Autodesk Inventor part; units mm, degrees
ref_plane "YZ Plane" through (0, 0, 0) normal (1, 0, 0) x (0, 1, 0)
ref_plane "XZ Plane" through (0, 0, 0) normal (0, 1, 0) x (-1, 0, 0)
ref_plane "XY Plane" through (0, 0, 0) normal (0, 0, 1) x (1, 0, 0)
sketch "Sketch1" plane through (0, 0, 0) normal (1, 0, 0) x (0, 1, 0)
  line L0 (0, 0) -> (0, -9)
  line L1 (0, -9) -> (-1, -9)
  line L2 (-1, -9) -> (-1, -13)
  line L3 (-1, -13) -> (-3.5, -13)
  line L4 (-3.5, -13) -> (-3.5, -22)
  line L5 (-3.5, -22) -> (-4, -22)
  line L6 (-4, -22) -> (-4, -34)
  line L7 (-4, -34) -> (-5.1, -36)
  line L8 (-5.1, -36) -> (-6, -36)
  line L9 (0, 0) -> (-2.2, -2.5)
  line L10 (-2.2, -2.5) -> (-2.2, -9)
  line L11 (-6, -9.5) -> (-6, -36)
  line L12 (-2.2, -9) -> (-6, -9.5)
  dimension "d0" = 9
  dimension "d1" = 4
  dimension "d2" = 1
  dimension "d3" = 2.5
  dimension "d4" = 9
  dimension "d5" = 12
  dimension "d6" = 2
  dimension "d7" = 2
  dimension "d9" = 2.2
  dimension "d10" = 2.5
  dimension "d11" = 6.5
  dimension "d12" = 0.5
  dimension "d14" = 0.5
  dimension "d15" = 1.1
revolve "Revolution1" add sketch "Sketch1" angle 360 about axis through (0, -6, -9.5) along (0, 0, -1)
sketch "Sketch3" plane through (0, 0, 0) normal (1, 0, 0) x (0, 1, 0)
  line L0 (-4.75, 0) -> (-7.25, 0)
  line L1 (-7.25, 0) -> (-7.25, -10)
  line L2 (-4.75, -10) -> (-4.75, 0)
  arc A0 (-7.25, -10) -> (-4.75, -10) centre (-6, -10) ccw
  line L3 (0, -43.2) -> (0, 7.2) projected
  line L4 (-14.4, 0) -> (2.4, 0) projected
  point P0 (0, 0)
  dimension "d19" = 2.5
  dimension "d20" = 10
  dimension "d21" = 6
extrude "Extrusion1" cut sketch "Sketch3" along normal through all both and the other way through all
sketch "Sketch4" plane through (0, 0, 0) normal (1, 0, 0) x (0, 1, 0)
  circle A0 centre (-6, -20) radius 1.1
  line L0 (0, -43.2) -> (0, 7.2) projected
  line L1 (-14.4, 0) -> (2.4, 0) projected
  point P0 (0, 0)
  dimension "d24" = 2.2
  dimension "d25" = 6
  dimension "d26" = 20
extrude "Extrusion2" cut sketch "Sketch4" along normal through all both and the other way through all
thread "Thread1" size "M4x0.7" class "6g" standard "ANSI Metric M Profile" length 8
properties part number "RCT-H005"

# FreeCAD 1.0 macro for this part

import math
import FreeCAD as App
import Part
import Sketcher
from FreeCAD import Vector
Q = App.Units.Quantity


def add_polygon(sketch, points):
    """Adds a closed chain of lines whose ends are joined by coincident constraints."""
    first, n = sketch.GeometryCount, len(points)
    for a, b in zip(points, points[1:] + points[:1]):
        sketch.addGeometry(Part.LineSegment(App.Vector(*a, 0), App.Vector(*b, 0)), False)
    for i in range(n):
        sketch.addConstraint(Sketcher.Constraint("Coincident", first + i, 2, first + (i + 1) % n, 1))

doc = App.newDocument("Part")
body = doc.addObject("PartDesign::Body", "Body")

# Sketch on YZ plane
sketch1 = doc.addObject("Sketcher::SketchObject", "Sketch")
body.addObject(sketch1)
sketch1.AttachmentSupport = (doc.YZ_Plane, [""])
sketch1.MapMode = "FlatFace"
add_polygon(sketch1, [(0, -9), (0, 0), (-2.2, -2.5), (-2.2, -9), (-6, -9.5), (-6, -36), (-5.1, -36), (-4, -34), (-4, -22), (-3.5, -22), (-3.5, -13), (-1, -13), (-1, -9)])  # lines 0-12
sketch1.addGeometry(Part.LineSegment(Vector(-6, 0, 0), Vector(-6, -36, 0)), True)  # axis
sketch1.addConstraint([
    Sketcher.Constraint("Vertical", 0),
    Sketcher.Constraint("Vertical", 2),
    Sketcher.Constraint("Vertical", 4),
    Sketcher.Constraint("Horizontal", 5),
    Sketcher.Constraint("Vertical", 7),
    Sketcher.Constraint("Horizontal", 8),
    Sketcher.Constraint("Vertical", 9),
    Sketcher.Constraint("Horizontal", 10),
    Sketcher.Constraint("Vertical", 11),
    Sketcher.Constraint("Horizontal", 12),
    Sketcher.Constraint("Vertical", 13),
    Sketcher.Constraint("Coincident", 0, 2, -1, 1),
    Sketcher.Constraint("Coincident", 13, 2, 4, 2),
    Sketcher.Constraint("PointOnObject", 13, 1, -1),
    Sketcher.Constraint("Horizontal", 2, 2, 11, 2),
    Sketcher.Constraint("Equal", 0, 9),
    Sketcher.Constraint("DistanceX", 12, 1, 12, 2, Q("1 mm")),
    Sketcher.Constraint("DistanceY", 0, 1, 0, 2, Q("9 mm")),
    Sketcher.Constraint("DistanceY", 7, 1, 7, 2, Q("12 mm")),
    Sketcher.Constraint("DistanceY", 11, 1, 11, 2, Q("4 mm")),
    Sketcher.Constraint("DistanceX", 8, 1, 8, 2, Q("0.5 mm")),
    Sketcher.Constraint("DistanceX", 10, 1, 10, 2, Q("2.5 mm")),
    Sketcher.Constraint("DistanceY", 2, 2, 2, 1, Q("6.5 mm")),
    Sketcher.Constraint("DistanceY", 5, 2, 6, 2, Q("2 mm")),
    Sketcher.Constraint("DistanceX", 4, 2, 6, 2, Q("2 mm")),
    Sketcher.Constraint("DistanceX", 1, 2, -1, 1, Q("2.2 mm")),
    Sketcher.Constraint("DistanceY", 3, 2, 2, 2, Q("0.5 mm")),
    Sketcher.Constraint("DistanceX", 5, 2, 6, 2, Q("1.1 mm")),
])
revolution = doc.addObject("PartDesign::Revolution", "Revolution")
body.addObject(revolution)
revolution.Profile = sketch1
revolution.ReferenceAxis = (sketch1, ["Axis0"])
revolution.Angle = 360

# Sketch on YZ plane
sketch2 = doc.addObject("Sketcher::SketchObject", "Sketch001")
body.addObject(sketch2)
sketch2.AttachmentSupport = (doc.YZ_Plane, [""])
sketch2.MapMode = "FlatFace"
sketch2.addGeometry([
    Part.LineSegment(Vector(-4.8, -10, 0), Vector(-4.8, 0, 0)),
    Part.LineSegment(Vector(-4.8, 0, 0), Vector(-7.2, 0, 0)),
    Part.LineSegment(Vector(-7.2, 0, 0), Vector(-7.2, -10, 0)),
    Part.ArcOfCircle(Part.Circle(Vector(-6, -10, 0), Vector(0, 0, 1), 1.2), math.radians(180), math.radians(360)),
], False)
sketch2.addConstraint([
    Sketcher.Constraint("Coincident", 0, 2, 1, 1),
    Sketcher.Constraint("Coincident", 1, 2, 2, 1),
    Sketcher.Constraint("Tangent", 2, 2, 3, 1),
    Sketcher.Constraint("Tangent", 3, 2, 0, 1),
    Sketcher.Constraint("Vertical", 0),
    Sketcher.Constraint("Horizontal", 1),
    Sketcher.Constraint("Vertical", 2),
    Sketcher.Constraint("PointOnObject", 0, 2, -1),
    Sketcher.Constraint("DistanceY", 0, 1, 0, 2, Q("10 mm")),
    Sketcher.Constraint("Radius", 3, Q("1.25 mm")),
    Sketcher.Constraint("DistanceX", 3, 3, -1, 1, Q("6 mm")),
])
pocket1 = doc.addObject("PartDesign::Pocket", "Pocket")
body.addObject(pocket1)
pocket1.Profile = sketch2
pocket1.Type = "ThroughAll"
pocket1.Midplane = True

# Sketch on YZ plane
sketch3 = doc.addObject("Sketcher::SketchObject", "Sketch002")
body.addObject(sketch3)
sketch3.AttachmentSupport = (doc.YZ_Plane, [""])
sketch3.MapMode = "FlatFace"
sketch3.addGeometry(Part.Circle(Vector(-6, -20, 0), Vector(0, 0, 1), 1.1), False)
sketch3.addConstraint([
    Sketcher.Constraint("Diameter", 0, Q("2.2 mm")),
    Sketcher.Constraint("DistanceX", 0, 3, -1, 1, Q("6 mm")),
    Sketcher.Constraint("DistanceY", 0, 3, -1, 1, Q("20 mm")),
])
pocket2 = doc.addObject("PartDesign::Pocket", "Pocket001")
body.addObject(pocket2)
pocket2.Profile = sketch3
pocket2.Type = "ThroughAll"
pocket2.Midplane = True

doc.recompute()
